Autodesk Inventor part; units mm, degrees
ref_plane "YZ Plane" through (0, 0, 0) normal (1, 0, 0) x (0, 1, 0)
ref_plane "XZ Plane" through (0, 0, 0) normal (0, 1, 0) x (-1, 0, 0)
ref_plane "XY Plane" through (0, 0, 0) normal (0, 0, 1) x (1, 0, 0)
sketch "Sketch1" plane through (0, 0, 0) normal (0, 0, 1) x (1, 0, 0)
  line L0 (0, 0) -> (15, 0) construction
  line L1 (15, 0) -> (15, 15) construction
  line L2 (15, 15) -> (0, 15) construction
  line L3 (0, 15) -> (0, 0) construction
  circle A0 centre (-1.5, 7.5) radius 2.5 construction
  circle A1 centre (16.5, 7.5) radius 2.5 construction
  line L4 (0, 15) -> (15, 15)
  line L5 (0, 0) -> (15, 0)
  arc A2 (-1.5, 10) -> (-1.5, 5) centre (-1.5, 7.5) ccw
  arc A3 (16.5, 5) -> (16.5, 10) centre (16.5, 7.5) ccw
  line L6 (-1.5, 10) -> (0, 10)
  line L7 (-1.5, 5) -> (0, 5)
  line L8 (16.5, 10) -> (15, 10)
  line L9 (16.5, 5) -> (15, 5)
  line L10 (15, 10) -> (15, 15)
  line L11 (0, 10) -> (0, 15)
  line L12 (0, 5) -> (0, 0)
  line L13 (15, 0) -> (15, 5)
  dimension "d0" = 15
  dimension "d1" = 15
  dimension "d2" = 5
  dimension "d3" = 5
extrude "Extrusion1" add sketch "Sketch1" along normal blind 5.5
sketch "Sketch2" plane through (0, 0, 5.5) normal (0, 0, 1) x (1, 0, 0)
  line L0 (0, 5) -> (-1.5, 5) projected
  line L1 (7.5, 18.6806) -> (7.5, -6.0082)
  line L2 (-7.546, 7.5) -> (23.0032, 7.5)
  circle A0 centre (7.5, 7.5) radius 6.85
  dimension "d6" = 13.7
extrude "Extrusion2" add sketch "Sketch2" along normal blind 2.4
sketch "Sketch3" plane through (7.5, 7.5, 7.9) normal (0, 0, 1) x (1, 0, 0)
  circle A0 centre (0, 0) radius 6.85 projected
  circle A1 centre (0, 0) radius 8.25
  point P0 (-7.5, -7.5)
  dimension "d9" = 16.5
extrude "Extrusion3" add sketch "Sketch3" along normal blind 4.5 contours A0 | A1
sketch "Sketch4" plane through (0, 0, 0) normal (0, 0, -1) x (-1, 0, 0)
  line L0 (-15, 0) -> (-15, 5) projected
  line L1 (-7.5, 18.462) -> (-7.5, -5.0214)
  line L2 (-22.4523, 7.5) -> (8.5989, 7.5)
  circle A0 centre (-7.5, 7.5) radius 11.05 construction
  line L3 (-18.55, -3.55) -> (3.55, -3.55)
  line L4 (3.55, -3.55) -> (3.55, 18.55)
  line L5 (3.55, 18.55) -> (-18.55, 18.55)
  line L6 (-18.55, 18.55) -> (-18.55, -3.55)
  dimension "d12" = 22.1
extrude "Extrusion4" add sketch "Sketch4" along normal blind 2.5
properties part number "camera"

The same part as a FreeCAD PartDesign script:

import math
import FreeCAD as App
import Part
import Sketcher

V = App.Vector
Q = App.Units.Quantity


def add_polygon(sketch, points):
    """Adds a closed chain of lines whose ends are joined by coincident constraints."""
    first, n = sketch.GeometryCount, len(points)
    for a, b in zip(points, points[1:] + points[:1]):
        sketch.addGeometry(Part.LineSegment(App.Vector(*a, 0), App.Vector(*b, 0)), False)
    for i in range(n):
        sketch.addConstraint(Sketcher.Constraint("Coincident", first + i, 2, first + (i + 1) % n, 1))

doc = App.newDocument("Part")
body = doc.addObject("PartDesign::Body", "Body")

# Sketch on XY plane
sketch1 = body.newObject("Sketcher::SketchObject", "Sketch")
sketch1.AttachmentSupport = (doc.getObject("XY_Plane"), [""])
sketch1.MapMode = "FlatFace"
sketch1.addGeometry([
    Part.LineSegment(V(15, 15, 0), V(0, 15, 0)),  # 0
    Part.LineSegment(V(0, 15, 0), V(0, 10, 0)),  # 1
    Part.LineSegment(V(0, 10, 0), V(-1.5, 10, 0)),  # 2
    Part.ArcOfCircle(Part.Circle(V(-1.5, 7.5, 0), V(0, 0, 1), 2.5), math.radians(90), math.radians(270)),  # 3
    Part.LineSegment(V(-1.5, 5, 0), V(0, 5, 0)),  # 4
    Part.LineSegment(V(0, 5, 0), V(0, 0, 0)),  # 5
    Part.LineSegment(V(0, 0, 0), V(15, 0, 0)),  # 6
    Part.LineSegment(V(15, 0, 0), V(15, 5, 0)),  # 7
    Part.LineSegment(V(15, 5, 0), V(16.5, 5, 0)),  # 8
    Part.ArcOfCircle(Part.Circle(V(16.5, 7.5, 0), V(0, 0, 1), 2.5), math.radians(-90), math.radians(90)),  # 9
    Part.LineSegment(V(16.5, 10, 0), V(15, 10, 0)),  # 10
    Part.LineSegment(V(15, 10, 0), V(15, 15, 0)),  # 11
], False)
sketch1.addConstraint([
    Sketcher.Constraint("Coincident", 0, 2, 1, 1),
    Sketcher.Constraint("Coincident", 1, 2, 2, 1),
    Sketcher.Constraint("Tangent", 2, 2, 3, 1),
    Sketcher.Constraint("Tangent", 3, 2, 4, 1),
    Sketcher.Constraint("Coincident", 4, 2, 5, 1),
    Sketcher.Constraint("Coincident", 5, 2, 6, 1),
    Sketcher.Constraint("Coincident", 6, 2, 7, 1),
    Sketcher.Constraint("Coincident", 7, 2, 8, 1),
    Sketcher.Constraint("Tangent", 8, 2, 9, 1),
    Sketcher.Constraint("Tangent", 9, 2, 10, 1),
    Sketcher.Constraint("Coincident", 10, 2, 11, 1),
    Sketcher.Constraint("Coincident", 11, 2, 0, 1),
    Sketcher.Constraint("Horizontal", 0),
    Sketcher.Constraint("Vertical", 1),
    Sketcher.Constraint("Horizontal", 2),
    Sketcher.Constraint("Horizontal", 4),
    Sketcher.Constraint("Vertical", 5),
    Sketcher.Constraint("Horizontal", 6),
    Sketcher.Constraint("Vertical", 7),
    Sketcher.Constraint("Horizontal", 8),
    Sketcher.Constraint("Horizontal", 10),
    Sketcher.Constraint("Vertical", 11),
    Sketcher.Constraint("Coincident", 5, 2, -1, 1),
    Sketcher.Constraint("Equal", 3, 9),
    Sketcher.Constraint("PointOnObject", 0, 2, -2),
    Sketcher.Constraint("Horizontal", 3, 3, 9, 3),
    Sketcher.Constraint("Vertical", 7, 2, 10, 2),
    Sketcher.Constraint("Equal", 4, 8),
    Sketcher.Constraint("Equal", 1, 5),
    Sketcher.Constraint("Radius", 3, Q("2.5 mm")),
    Sketcher.Constraint("DistanceX", 0, 2, 0, 1, Q("15 mm")),
    Sketcher.Constraint("DistanceY", 1, 2, 1, 1, Q("5 mm")),
    Sketcher.Constraint("DistanceX", 2, 2, 2, 1, Q("1.5 mm")),
])
pad1 = body.newObject("PartDesign::Pad", "Pad")
pad1.Profile = sketch1
pad1.Length = 5.5

# Sketch on XY plane
sketch2 = body.newObject("Sketcher::SketchObject", "Sketch001")
sketch2.AttachmentSupport = (doc.getObject("XY_Plane"), [""])
sketch2.MapMode = "FlatFace"
sketch2.AttachmentOffset = App.Placement(V(0, 0, 5.5), App.Rotation())
sketch2.addGeometry(Part.Circle(V(7.5, 7.5, 0), V(0, 0, 1), 6.85), False)
sketch2.addConstraint([
    Sketcher.Constraint("Diameter", 0, Q("13.7 mm")),
    Sketcher.Constraint("DistanceX", -1, 1, 0, 3, Q("7.5 mm")),
    Sketcher.Constraint("DistanceY", -1, 1, 0, 3, Q("7.5 mm")),
])
pad2 = body.newObject("PartDesign::Pad", "Pad001")
pad2.Profile = sketch2
pad2.Length = 2.4

# Sketch on XY plane
sketch3 = body.newObject("Sketcher::SketchObject", "Sketch002")
sketch3.AttachmentSupport = (doc.getObject("XY_Plane"), [""])
sketch3.MapMode = "FlatFace"
sketch3.AttachmentOffset = App.Placement(V(0, 0, 7.9), App.Rotation())
sketch3.addGeometry(Part.Circle(V(7.5, 7.5, 0), V(0, 0, 1), 8.25), False)
sketch3.addConstraint([
    Sketcher.Constraint("Diameter", 0, Q("16.5 mm")),
    Sketcher.Constraint("DistanceX", -1, 1, 0, 3, Q("7.5 mm")),
    Sketcher.Constraint("DistanceY", -1, 1, 0, 3, Q("7.5 mm")),
])
pad3 = body.newObject("PartDesign::Pad", "Pad002")
pad3.Profile = sketch3
pad3.Length = 4.5

# Sketch on XY plane
sketch4 = body.newObject("Sketcher::SketchObject", "Sketch003")
sketch4.AttachmentSupport = (doc.getObject("XY_Plane"), [""])
sketch4.MapMode = "FlatFace"
add_polygon(sketch4, [(-3.55, -3.55), (-3.55, 18.55), (18.55, 18.55), (18.55, -3.55)])  # lines 0-3
sketch4.addConstraint([
    Sketcher.Constraint("Vertical", 0),
    Sketcher.Constraint("Horizontal", 1),
    Sketcher.Constraint("Vertical", 2),
    Sketcher.Constraint("Horizontal", 3),
    Sketcher.Constraint("Equal", 3, 0),
    Sketcher.Constraint("DistanceX", 1, 1, 1, 2, Q("22.1 mm")),
    Sketcher.Constraint("DistanceX", 0, 2, -1, 1, Q("3.55 mm")),
    Sketcher.Constraint("DistanceY", -1, 1, 0, 2, Q("18.55 mm")),
])
pad4 = body.newObject("PartDesign::Pad", "Pad003")
pad4.Profile = sketch4
pad4.Length = 2.5
pad4.Reversed = True

doc.recompute()
